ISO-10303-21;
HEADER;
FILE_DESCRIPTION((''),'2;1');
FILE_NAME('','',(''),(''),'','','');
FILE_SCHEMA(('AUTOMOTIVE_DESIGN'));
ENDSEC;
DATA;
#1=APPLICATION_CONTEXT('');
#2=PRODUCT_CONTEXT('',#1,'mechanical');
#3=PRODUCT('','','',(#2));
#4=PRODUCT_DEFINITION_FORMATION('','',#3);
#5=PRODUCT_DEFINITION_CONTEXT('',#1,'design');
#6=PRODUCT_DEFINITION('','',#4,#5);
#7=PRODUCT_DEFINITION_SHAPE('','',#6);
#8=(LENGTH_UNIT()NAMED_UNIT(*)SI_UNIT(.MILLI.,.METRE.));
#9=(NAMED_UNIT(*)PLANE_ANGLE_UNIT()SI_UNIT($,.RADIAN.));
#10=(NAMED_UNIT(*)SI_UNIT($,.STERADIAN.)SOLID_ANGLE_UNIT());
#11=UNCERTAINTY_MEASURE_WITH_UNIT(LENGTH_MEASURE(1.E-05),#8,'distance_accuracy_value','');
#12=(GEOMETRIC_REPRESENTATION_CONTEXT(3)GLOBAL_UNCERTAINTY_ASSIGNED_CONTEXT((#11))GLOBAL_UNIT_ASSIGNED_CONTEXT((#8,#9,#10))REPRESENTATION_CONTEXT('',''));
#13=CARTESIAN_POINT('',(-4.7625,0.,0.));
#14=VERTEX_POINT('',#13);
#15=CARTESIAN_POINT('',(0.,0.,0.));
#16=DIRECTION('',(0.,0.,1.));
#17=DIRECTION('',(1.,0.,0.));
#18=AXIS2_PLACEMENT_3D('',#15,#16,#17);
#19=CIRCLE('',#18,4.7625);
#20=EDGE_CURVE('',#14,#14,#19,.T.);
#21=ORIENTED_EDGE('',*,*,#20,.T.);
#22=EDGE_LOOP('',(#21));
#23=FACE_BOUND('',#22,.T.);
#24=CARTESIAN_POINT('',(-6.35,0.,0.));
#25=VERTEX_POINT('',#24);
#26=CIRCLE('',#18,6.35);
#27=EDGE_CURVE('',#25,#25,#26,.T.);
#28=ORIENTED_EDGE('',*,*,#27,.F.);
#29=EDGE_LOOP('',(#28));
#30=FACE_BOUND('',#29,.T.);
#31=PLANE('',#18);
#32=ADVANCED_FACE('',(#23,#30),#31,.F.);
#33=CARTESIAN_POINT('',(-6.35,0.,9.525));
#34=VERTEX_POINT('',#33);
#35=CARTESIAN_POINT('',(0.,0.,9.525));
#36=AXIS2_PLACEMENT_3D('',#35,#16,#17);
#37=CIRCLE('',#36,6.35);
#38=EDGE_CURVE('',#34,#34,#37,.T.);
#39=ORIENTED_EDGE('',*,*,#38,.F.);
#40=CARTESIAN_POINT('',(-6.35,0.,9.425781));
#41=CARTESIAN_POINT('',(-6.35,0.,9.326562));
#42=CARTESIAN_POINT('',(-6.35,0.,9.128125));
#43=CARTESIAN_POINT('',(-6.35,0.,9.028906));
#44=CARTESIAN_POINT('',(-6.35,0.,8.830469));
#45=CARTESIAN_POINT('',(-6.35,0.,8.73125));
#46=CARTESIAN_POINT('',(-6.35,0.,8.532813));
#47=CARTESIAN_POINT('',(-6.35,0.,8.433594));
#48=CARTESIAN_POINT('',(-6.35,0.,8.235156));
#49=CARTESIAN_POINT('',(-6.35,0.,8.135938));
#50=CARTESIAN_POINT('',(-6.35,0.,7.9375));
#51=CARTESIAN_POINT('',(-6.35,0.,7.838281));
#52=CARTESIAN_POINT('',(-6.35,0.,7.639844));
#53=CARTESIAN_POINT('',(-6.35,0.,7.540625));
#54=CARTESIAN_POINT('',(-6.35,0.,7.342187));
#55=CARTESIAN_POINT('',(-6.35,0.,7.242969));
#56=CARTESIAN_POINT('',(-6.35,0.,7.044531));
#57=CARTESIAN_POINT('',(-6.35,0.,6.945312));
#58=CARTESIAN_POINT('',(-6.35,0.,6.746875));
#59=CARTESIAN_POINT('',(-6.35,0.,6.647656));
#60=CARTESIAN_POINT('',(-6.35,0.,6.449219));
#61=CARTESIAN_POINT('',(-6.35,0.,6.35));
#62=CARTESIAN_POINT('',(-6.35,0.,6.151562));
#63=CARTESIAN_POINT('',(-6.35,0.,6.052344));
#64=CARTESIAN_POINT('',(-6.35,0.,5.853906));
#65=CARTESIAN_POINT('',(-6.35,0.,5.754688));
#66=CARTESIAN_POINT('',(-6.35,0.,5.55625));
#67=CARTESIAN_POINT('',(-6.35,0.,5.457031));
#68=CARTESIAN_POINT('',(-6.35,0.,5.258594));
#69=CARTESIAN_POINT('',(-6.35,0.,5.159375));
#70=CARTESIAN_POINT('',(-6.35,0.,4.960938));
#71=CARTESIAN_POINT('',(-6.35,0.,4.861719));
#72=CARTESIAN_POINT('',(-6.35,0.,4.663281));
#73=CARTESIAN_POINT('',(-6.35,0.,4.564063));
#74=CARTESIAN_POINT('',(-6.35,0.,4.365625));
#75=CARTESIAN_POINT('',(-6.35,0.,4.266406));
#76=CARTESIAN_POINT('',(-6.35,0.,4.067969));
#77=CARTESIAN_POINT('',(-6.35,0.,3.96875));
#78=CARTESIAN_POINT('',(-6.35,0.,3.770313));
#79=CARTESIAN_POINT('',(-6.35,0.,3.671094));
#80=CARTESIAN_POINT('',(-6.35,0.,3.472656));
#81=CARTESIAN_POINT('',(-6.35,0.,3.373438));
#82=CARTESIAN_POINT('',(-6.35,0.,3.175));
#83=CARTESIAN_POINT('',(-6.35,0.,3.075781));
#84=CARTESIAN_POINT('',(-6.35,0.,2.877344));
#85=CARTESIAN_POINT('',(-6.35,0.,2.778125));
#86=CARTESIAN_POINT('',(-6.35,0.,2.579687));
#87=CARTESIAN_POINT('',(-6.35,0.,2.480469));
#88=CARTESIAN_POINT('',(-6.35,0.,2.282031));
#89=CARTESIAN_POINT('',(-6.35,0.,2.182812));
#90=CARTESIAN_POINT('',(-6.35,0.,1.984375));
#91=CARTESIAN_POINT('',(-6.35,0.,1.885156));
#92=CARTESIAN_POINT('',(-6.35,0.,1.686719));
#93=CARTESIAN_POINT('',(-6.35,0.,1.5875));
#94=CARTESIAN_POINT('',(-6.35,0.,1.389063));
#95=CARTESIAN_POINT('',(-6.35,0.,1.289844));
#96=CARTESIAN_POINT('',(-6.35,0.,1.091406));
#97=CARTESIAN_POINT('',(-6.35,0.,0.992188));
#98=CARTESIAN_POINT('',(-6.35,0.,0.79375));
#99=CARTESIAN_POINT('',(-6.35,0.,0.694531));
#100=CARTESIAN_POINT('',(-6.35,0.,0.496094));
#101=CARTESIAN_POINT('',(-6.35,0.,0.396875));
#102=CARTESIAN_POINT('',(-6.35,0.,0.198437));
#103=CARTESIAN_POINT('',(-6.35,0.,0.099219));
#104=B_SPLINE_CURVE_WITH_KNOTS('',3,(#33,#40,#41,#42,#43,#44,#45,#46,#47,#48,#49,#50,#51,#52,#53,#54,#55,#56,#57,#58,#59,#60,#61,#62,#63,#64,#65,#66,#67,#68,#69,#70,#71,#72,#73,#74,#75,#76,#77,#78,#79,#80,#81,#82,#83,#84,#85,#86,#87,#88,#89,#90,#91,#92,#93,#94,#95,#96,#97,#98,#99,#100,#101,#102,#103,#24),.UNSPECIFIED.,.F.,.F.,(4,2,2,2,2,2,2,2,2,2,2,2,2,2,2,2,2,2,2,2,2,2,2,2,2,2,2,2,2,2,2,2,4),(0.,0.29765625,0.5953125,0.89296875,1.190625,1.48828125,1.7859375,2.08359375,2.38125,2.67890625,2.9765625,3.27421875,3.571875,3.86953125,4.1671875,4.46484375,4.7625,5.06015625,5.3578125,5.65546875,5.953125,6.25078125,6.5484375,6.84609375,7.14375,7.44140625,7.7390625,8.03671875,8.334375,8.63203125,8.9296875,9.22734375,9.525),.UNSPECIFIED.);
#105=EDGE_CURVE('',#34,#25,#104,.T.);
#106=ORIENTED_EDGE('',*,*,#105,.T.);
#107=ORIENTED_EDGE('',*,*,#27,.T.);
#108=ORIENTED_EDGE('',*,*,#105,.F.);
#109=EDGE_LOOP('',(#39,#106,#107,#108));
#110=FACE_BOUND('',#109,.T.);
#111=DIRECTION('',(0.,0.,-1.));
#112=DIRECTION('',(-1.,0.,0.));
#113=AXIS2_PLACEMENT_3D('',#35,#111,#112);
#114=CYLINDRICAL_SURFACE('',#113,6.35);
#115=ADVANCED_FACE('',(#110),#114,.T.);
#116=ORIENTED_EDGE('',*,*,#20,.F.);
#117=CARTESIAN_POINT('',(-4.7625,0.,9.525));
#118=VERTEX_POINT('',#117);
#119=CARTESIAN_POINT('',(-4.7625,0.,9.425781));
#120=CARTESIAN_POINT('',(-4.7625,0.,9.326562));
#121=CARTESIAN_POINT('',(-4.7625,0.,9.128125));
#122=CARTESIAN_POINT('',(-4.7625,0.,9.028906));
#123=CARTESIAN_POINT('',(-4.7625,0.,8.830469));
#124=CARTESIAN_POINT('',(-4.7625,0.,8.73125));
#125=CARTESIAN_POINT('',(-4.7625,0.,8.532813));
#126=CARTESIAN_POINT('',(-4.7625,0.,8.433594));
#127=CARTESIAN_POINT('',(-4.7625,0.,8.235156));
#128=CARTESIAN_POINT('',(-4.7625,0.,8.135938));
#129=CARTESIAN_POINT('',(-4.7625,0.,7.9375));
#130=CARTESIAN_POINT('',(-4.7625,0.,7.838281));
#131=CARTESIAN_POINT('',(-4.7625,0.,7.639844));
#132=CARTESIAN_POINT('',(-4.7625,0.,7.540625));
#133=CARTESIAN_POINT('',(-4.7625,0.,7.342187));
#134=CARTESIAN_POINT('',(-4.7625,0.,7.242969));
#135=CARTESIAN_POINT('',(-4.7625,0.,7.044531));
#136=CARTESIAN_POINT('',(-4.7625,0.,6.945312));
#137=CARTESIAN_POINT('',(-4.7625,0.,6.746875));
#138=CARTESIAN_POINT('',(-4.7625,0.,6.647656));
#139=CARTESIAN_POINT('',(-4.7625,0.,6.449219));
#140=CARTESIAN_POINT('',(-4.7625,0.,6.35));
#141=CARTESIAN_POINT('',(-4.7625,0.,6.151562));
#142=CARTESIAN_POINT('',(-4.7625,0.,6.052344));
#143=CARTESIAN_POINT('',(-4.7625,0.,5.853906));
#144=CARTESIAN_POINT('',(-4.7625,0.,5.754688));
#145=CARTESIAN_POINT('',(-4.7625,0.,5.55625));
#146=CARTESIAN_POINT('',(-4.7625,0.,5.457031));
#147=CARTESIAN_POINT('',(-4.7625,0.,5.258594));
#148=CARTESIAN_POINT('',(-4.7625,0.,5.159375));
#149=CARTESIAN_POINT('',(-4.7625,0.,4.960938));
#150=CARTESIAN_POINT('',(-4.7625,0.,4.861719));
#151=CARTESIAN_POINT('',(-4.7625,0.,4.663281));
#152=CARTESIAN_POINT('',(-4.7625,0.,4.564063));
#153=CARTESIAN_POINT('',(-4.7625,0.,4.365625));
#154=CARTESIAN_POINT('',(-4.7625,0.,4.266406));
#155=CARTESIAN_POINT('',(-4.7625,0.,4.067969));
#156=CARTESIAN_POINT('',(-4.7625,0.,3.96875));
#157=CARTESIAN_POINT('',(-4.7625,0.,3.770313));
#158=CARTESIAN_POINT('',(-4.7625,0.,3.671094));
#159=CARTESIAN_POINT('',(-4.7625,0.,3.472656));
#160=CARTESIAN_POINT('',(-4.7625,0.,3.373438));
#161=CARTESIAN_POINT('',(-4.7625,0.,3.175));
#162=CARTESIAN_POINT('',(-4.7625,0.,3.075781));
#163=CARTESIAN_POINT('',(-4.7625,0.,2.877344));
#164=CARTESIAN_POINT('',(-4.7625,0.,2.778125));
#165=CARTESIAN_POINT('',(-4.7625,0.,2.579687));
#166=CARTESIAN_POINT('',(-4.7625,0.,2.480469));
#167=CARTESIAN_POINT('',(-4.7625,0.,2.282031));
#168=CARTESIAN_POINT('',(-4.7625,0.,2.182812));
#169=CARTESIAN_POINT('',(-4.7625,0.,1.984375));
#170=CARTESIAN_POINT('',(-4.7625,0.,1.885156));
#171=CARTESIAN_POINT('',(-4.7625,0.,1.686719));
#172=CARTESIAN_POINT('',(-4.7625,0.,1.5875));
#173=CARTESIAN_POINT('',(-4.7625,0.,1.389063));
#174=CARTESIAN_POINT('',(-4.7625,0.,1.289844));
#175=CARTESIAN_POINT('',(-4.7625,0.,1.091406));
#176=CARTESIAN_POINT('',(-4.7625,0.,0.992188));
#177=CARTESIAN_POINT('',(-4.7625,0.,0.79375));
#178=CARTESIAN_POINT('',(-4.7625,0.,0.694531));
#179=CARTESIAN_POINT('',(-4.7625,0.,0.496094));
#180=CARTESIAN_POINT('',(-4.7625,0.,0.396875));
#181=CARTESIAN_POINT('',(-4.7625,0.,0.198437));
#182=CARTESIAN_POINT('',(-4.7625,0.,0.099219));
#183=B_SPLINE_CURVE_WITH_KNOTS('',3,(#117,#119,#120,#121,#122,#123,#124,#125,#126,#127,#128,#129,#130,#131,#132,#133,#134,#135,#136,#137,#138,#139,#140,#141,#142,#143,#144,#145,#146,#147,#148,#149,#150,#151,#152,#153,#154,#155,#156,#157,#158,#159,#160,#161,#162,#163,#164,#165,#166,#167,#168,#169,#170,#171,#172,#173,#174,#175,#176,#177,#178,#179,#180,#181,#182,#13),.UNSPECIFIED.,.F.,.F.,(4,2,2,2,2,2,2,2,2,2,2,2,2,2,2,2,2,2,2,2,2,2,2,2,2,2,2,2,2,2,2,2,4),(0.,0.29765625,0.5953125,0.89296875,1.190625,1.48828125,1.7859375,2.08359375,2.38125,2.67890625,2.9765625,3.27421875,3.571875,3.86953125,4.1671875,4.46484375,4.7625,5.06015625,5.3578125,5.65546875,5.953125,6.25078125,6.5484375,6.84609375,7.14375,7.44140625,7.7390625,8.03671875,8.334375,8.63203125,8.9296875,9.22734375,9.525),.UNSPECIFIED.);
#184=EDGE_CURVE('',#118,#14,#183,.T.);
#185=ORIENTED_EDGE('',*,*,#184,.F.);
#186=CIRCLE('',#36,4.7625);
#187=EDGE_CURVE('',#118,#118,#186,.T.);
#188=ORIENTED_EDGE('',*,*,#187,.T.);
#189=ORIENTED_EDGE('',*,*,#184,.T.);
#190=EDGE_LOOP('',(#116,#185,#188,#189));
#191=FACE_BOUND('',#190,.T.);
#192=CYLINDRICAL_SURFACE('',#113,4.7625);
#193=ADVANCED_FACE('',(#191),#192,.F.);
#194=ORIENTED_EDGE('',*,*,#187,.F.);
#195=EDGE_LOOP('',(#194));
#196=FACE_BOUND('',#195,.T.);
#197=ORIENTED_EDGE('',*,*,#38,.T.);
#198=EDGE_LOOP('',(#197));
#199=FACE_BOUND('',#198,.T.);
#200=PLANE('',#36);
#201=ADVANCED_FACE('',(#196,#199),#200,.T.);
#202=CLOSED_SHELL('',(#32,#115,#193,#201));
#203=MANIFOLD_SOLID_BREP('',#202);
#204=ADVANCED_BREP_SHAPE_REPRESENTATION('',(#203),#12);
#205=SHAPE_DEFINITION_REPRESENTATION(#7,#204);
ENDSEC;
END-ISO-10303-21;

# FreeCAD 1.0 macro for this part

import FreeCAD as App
import Part
import Sketcher
from FreeCAD import Vector
Q = App.Units.Quantity

doc = App.newDocument("Part")
params = doc.addObject("Spreadsheet::Sheet", "Params")
for row, (alias, value) in enumerate([
    ("sketch1_diameter", "0.5 in"),
    ("sketch1_diameter2", "0.375 in"),
    ("pad1_length", "0.375 in"),
], start=1):
    params.set(f"A{row}", alias)
    params.set(f"B{row}", "=" + value)
    params.setAlias(f"B{row}", alias)

body = doc.addObject("PartDesign::Body", "Body")

# Sketch on XY plane
sketch1 = body.newObject("Sketcher::SketchObject", "Sketch")
sketch1.AttachmentSupport = (doc.getObject("XY_Plane"), [""])
sketch1.MapMode = "FlatFace"
sketch1.addGeometry(Part.Circle(Vector(0, 0, 0), Vector(0, 0, 1), 6.3), False)
sketch1.addGeometry(Part.Circle(Vector(0, 0, 0), Vector(0, 0, 1), 4.8), False)
sketch1.addConstraint(Sketcher.Constraint("Coincident", 0, 3, -1, 1))
sketch1.addConstraint(Sketcher.Constraint("Coincident", 1, 3, -1, 1))
sketch1.addConstraint(Sketcher.Constraint("Diameter", 0, Q("0.5 in")))
sketch1.addConstraint(Sketcher.Constraint("Diameter", 1, Q("0.375 in")))
sketch1.setExpression("Constraints[2]", "Params.sketch1_diameter")
sketch1.setExpression("Constraints[3]", "Params.sketch1_diameter2")
pad1 = body.newObject("PartDesign::Pad", "Pad")
pad1.Profile = sketch1
pad1.setExpression("Length", "Params.pad1_length")

doc.recompute()
